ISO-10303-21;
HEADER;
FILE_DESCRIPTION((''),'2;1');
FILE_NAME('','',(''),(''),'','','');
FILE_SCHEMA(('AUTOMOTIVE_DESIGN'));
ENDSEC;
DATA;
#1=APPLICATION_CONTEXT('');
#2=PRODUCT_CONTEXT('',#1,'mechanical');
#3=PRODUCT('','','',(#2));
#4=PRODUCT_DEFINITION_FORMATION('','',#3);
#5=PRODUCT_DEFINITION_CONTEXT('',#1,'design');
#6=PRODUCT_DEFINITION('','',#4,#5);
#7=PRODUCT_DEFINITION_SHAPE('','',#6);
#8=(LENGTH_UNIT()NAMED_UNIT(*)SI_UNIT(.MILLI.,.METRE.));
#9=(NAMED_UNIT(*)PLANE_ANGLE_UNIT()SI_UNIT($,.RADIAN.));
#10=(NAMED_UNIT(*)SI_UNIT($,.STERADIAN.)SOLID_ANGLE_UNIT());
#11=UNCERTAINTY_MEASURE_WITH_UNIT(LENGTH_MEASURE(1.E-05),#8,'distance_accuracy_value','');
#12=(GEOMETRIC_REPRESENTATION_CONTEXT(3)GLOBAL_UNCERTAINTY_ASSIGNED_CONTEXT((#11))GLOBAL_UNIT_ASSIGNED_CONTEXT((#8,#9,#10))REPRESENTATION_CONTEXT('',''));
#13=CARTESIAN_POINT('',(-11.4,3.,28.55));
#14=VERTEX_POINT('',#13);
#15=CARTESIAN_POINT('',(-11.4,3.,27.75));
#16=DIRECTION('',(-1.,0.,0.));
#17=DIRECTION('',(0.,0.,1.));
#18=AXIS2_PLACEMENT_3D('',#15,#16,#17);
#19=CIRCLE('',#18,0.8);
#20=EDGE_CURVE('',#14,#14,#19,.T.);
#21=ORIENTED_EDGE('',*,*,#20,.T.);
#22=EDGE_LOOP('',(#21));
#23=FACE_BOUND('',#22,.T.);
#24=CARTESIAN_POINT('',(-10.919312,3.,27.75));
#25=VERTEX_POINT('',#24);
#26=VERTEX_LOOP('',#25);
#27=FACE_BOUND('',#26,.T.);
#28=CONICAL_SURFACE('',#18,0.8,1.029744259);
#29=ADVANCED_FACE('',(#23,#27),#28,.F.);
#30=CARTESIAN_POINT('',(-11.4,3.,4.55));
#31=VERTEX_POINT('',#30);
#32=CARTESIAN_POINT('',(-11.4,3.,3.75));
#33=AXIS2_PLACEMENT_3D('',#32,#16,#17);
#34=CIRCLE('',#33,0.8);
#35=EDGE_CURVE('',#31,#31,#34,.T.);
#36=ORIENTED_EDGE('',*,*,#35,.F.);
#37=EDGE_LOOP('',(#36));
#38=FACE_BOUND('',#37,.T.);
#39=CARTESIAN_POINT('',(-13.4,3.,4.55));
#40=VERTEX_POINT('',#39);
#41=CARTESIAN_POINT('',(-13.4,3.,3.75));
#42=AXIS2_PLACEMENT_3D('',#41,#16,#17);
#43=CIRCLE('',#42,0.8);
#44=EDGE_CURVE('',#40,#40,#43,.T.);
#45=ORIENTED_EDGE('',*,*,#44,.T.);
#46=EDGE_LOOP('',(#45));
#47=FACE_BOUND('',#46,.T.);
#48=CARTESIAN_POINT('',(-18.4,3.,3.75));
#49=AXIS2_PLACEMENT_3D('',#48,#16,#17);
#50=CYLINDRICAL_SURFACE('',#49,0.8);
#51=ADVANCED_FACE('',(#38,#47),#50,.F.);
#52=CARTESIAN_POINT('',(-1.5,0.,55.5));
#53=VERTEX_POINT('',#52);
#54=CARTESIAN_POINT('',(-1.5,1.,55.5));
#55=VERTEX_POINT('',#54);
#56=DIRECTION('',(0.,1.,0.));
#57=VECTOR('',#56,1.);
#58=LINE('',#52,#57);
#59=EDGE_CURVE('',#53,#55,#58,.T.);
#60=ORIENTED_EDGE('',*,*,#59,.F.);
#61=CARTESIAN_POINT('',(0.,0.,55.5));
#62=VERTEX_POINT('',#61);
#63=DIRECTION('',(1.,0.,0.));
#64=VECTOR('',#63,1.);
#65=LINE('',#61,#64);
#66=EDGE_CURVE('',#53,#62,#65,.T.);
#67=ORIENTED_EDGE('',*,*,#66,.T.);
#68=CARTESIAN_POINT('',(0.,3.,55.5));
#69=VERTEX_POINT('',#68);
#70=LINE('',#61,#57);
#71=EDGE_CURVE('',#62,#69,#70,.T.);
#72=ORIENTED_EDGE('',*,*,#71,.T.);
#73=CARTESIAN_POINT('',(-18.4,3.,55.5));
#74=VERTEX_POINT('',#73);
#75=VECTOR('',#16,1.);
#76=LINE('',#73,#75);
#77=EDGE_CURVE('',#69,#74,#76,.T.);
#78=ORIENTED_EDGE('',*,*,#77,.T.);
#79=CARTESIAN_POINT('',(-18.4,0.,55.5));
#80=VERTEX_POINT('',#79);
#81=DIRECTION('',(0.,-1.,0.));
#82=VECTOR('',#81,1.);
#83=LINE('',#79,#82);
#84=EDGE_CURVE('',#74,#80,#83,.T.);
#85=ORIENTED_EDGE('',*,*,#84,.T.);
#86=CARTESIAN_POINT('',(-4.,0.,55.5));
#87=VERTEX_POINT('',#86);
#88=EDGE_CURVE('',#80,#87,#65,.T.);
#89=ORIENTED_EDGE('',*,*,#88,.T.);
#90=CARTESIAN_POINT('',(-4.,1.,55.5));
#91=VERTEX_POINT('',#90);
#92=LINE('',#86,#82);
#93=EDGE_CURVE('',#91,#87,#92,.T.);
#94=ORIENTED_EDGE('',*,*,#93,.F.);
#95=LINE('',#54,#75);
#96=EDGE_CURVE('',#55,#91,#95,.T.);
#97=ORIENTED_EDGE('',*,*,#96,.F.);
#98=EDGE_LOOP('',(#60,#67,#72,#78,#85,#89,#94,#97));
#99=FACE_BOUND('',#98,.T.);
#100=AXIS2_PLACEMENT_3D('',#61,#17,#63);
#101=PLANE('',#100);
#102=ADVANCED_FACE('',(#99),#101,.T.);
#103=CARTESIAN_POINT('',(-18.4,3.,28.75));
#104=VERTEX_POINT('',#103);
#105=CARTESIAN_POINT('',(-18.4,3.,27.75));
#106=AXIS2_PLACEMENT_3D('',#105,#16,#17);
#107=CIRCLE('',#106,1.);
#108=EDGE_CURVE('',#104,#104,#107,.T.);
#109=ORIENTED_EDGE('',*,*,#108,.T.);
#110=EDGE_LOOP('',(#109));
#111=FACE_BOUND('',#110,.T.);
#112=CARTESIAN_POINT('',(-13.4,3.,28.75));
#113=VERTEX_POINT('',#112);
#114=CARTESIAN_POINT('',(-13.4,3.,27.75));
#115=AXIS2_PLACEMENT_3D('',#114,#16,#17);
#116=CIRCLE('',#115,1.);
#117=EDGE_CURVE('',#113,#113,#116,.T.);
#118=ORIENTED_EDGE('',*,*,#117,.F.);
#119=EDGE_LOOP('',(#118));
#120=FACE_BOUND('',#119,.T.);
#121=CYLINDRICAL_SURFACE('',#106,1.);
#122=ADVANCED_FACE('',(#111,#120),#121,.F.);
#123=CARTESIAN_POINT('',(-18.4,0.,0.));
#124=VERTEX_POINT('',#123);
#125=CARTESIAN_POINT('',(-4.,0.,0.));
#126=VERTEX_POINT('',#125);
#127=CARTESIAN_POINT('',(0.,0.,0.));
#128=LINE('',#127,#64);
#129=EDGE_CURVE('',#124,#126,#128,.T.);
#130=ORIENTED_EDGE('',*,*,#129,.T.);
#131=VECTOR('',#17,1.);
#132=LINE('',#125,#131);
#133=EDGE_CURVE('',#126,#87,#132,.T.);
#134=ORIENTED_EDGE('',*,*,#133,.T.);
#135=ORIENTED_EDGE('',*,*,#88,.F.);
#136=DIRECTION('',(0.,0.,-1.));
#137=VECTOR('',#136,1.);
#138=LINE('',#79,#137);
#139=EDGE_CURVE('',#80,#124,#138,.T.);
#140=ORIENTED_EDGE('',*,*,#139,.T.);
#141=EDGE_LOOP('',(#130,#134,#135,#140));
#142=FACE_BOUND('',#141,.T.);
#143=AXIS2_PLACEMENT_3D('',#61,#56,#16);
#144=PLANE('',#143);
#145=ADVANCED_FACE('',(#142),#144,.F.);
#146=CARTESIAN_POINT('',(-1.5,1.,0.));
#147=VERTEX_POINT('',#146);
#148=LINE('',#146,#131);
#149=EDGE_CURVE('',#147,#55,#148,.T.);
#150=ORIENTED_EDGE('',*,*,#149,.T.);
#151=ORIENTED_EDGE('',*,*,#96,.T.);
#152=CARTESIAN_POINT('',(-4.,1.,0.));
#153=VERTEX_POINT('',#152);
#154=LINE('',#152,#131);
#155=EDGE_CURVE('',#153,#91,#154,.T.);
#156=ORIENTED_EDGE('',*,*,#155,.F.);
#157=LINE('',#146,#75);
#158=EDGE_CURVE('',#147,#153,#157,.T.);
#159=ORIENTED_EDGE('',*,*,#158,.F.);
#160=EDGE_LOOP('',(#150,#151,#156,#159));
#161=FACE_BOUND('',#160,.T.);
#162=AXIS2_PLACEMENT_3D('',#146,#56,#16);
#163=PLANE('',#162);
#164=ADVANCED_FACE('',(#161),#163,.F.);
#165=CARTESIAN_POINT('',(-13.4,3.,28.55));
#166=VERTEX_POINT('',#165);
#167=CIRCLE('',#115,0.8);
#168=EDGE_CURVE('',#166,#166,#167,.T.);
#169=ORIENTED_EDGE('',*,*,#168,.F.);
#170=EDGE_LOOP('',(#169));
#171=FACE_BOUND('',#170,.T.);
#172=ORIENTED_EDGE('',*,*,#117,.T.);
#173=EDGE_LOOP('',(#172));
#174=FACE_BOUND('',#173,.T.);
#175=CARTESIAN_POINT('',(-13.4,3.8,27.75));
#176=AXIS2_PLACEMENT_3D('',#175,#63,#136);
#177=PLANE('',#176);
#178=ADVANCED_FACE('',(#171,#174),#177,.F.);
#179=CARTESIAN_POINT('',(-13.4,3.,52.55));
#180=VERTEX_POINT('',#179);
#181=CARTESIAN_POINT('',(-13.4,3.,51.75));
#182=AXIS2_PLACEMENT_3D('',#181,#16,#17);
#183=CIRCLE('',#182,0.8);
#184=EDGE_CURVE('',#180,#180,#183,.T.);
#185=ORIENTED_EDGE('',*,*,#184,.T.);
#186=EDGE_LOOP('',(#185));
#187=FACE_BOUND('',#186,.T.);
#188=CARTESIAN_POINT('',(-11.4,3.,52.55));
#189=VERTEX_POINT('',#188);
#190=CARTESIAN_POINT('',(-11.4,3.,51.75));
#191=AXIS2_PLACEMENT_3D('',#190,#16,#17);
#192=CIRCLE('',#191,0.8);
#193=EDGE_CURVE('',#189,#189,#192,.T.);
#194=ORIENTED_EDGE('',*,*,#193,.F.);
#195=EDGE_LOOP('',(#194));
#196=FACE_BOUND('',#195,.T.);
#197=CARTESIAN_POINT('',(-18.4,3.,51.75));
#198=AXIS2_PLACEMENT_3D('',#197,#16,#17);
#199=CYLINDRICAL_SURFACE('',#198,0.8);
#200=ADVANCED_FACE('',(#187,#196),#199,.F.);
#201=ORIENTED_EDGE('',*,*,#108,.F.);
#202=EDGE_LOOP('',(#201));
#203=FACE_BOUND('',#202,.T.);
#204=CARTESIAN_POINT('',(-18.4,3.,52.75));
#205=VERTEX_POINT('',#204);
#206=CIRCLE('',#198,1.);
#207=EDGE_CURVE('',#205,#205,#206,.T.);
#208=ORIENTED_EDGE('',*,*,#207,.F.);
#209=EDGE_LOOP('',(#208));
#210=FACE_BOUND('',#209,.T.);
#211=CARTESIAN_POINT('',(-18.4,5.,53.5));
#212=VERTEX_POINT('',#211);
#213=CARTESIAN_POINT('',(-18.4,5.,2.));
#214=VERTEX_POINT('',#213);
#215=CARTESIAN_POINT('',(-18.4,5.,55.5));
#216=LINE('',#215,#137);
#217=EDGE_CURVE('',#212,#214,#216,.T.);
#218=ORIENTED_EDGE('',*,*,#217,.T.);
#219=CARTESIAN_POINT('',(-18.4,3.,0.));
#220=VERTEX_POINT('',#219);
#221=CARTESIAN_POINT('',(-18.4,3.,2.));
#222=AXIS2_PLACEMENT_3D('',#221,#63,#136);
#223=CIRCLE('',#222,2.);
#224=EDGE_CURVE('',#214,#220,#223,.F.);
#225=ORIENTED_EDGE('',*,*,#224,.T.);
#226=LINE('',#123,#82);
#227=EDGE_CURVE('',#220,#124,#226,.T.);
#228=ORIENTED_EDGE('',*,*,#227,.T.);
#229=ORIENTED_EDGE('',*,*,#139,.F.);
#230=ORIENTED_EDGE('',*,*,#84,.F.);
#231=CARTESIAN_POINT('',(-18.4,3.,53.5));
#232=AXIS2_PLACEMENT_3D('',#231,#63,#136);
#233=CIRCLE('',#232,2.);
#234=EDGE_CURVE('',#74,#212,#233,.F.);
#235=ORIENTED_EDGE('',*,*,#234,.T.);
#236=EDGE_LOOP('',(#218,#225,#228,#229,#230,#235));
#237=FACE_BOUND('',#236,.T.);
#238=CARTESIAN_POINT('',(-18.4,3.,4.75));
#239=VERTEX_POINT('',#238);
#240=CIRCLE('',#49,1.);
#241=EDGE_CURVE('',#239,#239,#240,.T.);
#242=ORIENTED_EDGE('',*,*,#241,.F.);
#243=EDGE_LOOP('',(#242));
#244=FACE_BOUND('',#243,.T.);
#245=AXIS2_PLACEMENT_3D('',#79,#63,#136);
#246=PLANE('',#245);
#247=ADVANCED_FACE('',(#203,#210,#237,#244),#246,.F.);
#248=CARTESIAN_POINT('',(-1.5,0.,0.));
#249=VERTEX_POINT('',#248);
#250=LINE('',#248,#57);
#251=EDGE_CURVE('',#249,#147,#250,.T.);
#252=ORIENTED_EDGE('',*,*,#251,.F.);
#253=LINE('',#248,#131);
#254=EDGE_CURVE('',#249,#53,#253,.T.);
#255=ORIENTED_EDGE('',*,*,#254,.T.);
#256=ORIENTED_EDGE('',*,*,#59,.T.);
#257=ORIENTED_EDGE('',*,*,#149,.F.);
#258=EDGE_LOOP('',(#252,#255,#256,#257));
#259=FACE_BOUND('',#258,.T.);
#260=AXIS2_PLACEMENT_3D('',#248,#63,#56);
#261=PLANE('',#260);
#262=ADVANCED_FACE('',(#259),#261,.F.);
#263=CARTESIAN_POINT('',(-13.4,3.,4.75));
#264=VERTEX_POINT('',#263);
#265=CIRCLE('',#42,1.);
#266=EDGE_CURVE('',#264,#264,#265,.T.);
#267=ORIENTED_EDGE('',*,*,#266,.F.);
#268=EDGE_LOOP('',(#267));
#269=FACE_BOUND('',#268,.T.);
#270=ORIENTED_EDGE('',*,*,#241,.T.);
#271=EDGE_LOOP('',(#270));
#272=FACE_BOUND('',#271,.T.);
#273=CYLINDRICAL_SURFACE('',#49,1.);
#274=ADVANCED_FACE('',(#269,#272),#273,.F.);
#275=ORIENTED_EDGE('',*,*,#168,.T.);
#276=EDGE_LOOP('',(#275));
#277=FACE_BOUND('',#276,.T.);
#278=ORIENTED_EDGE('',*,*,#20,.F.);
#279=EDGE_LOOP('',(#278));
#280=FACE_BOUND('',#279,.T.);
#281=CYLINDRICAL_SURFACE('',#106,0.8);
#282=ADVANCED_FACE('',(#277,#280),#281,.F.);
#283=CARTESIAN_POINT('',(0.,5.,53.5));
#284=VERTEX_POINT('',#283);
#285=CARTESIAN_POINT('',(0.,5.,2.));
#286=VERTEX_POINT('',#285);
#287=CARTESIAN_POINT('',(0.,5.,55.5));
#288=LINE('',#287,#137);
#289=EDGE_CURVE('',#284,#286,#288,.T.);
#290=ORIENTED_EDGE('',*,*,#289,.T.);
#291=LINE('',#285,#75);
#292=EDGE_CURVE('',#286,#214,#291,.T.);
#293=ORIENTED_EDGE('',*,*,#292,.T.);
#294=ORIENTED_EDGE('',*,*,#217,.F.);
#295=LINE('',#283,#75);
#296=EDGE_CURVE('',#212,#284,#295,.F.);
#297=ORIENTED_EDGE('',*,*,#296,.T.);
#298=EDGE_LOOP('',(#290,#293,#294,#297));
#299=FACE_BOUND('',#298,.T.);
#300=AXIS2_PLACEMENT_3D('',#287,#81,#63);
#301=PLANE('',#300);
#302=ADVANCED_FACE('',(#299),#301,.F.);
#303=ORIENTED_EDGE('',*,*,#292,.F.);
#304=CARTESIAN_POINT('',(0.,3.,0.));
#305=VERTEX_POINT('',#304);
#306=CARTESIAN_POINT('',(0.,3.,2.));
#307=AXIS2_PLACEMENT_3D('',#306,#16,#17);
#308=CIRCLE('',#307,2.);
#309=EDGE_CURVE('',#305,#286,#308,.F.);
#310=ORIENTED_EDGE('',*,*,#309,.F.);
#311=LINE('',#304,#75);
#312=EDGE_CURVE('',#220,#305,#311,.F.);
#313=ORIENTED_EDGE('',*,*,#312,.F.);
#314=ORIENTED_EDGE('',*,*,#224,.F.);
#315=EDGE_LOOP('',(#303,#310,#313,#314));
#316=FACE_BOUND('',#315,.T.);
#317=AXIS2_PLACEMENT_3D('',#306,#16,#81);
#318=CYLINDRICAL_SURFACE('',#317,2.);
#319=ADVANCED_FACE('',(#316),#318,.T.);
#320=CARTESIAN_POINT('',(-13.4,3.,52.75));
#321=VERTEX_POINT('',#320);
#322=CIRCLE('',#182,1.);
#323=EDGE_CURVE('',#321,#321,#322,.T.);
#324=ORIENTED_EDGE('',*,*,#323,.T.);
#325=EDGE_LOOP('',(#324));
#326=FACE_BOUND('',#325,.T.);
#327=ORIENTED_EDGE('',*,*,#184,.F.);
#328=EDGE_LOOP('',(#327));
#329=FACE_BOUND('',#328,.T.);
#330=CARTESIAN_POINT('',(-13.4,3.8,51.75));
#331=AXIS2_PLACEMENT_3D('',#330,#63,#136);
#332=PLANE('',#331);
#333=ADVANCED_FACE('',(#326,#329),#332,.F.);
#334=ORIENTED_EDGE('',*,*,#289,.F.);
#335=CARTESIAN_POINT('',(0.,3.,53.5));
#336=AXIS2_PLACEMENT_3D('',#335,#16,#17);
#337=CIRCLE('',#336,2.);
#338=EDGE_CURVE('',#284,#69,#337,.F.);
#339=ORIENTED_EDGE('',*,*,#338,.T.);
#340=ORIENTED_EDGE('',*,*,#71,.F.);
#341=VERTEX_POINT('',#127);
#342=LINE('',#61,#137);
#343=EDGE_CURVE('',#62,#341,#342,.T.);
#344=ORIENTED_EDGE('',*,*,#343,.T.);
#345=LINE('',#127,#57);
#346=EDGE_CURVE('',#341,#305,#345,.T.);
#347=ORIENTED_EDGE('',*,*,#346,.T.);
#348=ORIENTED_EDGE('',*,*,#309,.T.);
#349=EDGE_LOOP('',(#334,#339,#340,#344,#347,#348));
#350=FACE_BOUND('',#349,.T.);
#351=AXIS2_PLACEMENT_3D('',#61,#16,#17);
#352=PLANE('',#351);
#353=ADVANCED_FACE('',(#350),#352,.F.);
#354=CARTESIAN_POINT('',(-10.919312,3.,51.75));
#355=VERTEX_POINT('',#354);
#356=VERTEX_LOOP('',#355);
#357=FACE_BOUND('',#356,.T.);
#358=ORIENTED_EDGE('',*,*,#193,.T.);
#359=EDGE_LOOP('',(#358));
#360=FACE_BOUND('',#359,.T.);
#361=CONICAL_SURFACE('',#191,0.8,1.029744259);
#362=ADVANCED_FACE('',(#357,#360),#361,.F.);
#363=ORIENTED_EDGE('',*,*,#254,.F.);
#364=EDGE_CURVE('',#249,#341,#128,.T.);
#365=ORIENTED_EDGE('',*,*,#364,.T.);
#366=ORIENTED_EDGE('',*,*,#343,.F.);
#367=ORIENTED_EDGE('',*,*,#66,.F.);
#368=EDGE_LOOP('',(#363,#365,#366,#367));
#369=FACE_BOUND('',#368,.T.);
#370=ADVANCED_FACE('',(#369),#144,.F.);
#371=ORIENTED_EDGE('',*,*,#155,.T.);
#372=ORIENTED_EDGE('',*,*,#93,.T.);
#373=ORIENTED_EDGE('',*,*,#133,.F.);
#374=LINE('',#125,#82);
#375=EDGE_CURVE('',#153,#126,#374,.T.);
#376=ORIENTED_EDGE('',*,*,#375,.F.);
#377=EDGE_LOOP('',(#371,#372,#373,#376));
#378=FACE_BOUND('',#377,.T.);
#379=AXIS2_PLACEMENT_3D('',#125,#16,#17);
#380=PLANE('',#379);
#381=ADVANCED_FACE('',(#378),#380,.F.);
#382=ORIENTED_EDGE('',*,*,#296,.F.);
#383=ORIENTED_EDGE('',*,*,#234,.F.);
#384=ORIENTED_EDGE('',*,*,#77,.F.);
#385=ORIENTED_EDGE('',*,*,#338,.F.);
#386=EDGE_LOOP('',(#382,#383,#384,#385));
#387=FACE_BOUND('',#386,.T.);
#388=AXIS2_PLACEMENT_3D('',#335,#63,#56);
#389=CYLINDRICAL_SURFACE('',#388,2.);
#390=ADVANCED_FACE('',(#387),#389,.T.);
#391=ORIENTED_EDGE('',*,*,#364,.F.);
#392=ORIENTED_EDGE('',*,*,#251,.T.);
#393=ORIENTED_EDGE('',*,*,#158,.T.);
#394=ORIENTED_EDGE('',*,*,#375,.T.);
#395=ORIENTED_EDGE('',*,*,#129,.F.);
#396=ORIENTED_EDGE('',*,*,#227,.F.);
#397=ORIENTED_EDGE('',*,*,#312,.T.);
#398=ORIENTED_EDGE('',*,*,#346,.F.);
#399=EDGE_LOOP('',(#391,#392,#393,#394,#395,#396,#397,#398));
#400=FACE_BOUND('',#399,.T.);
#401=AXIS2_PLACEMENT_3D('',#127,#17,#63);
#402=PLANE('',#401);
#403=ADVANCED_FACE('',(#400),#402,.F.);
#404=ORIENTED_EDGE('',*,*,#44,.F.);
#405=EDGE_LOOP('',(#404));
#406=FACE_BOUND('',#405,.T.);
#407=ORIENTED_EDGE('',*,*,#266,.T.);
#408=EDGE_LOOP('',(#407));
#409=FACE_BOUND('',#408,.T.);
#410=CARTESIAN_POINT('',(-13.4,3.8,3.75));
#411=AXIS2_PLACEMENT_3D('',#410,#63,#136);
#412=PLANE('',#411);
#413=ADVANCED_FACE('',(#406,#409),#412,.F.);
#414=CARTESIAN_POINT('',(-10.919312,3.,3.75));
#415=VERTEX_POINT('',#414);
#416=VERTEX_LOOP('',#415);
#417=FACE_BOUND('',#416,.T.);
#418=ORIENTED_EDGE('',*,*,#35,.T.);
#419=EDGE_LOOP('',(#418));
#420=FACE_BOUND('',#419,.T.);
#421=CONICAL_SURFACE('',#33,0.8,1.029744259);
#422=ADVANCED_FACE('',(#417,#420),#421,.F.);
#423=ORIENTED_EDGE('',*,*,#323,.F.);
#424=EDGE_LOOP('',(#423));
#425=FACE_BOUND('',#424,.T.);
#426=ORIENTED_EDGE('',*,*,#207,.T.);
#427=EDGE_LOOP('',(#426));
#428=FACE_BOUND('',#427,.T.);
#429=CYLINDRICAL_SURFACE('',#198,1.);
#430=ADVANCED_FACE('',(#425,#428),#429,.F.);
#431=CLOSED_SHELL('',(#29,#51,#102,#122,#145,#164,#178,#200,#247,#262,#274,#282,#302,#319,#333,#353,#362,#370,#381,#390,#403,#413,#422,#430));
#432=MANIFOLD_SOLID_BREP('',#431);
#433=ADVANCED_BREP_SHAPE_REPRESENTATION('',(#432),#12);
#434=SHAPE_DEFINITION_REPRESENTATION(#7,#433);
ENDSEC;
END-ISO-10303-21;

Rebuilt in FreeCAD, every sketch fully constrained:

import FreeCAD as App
import Part
import Sketcher


def edges_at(feature, points):
    """Names of the edges that pass closest to the given points."""
    edges = feature.Shape.Edges
    near = lambda p: min(range(len(edges)), key=lambda i: edges[i].distToShape(Part.Vertex(*p))[0])
    return sorted({f"Edge{near(p) + 1}" for p in points})


def add_polygon(sketch, points):
    """Adds a closed chain of lines whose ends are joined by coincident constraints."""
    first, n = sketch.GeometryCount, len(points)
    for a, b in zip(points, points[1:] + points[:1]):
        sketch.addGeometry(Part.LineSegment(App.Vector(*a, 0), App.Vector(*b, 0)), False)
    for i in range(n):
        sketch.addConstraint(Sketcher.Constraint("Coincident", first + i, 2, first + (i + 1) % n, 1))

doc = App.newDocument("Part")
body = doc.addObject("PartDesign::Body", "Body")

sketch1 = doc.addObject("Sketcher::SketchObject", "Sketch")
body.addObject(sketch1)
sketch1.AttachmentSupport = (doc.XY_Plane, [""])
sketch1.MapMode = "FlatFace"
add_polygon(sketch1, [(-18.4, 5), (-18.4, 0), (0, 0), (0, 5)])
sketch1.addConstraint([
    Sketcher.Constraint("Vertical", 0),
    Sketcher.Constraint("Horizontal", 1),
    Sketcher.Constraint("Vertical", 2),
    Sketcher.Constraint("Horizontal", 3),
    Sketcher.Constraint("Coincident", 1, 2, -1, 1),
    Sketcher.Constraint("DistanceY", 0, 2, 0, 1, 5.0),
    Sketcher.Constraint("DistanceX", 1, 1, 1, 2, 18.4),
])
pad1 = doc.addObject("PartDesign::Pad", "Pad")
body.addObject(pad1)
pad1.Profile = sketch1
pad1.Length = 55.5

sketch2 = doc.addObject("Sketcher::SketchObject", "Sketch001")
body.addObject(sketch2)
sketch2.AttachmentSupport = (doc.XY_Plane, [""])
sketch2.MapMode = "FlatFace"
sketch2.AttachmentOffset = App.Placement(App.Vector(0, 0, 55.5), App.Rotation())
add_polygon(sketch2, [(-4, 1), (-4, 0), (-1.5, 0), (-1.5, 1)])
sketch2.addConstraint([
    Sketcher.Constraint("Vertical", 0),
    Sketcher.Constraint("Horizontal", 1),
    Sketcher.Constraint("Vertical", 2),
    Sketcher.Constraint("Horizontal", 3),
    Sketcher.Constraint("PointOnObject", 0, 2, -1),
    Sketcher.Constraint("DistanceY", 0, 2, 0, 1, 1.0),
    Sketcher.Constraint("DistanceX", 1, 1, 1, 2, 2.5),
    Sketcher.Constraint("DistanceX", 0, 2, -1, 1, 4.0),
])
pocket1 = doc.addObject("PartDesign::Pocket", "Pocket")
body.addObject(pocket1)
pocket1.Profile = sketch2
pocket1.Type = "ThroughAll"

sketch3 = doc.addObject("Sketcher::SketchObject", "Sketch002")
body.addObject(sketch3)
sketch3.AttachmentSupport = (doc.YZ_Plane, [""])
sketch3.MapMode = "FlatFace"
sketch3.AttachmentOffset = App.Placement(App.Vector(0, 0, -18.4), App.Rotation())
sketch3.addGeometry([
    Part.Circle(App.Vector(3, 51.75, 0), App.Vector(0, 0, 1), 0.8),
    Part.Circle(App.Vector(3, 27.75, 0), App.Vector(0, 0, 1), 0.8),
    Part.Circle(App.Vector(3, 3.75, 0), App.Vector(0, 0, 1), 0.8),
], False)
sketch3.addConstraint([
    Sketcher.Constraint("Equal", 0, 1),
    Sketcher.Constraint("Equal", 1, 2),
    Sketcher.Constraint("Vertical", 0, 3, 1, 3),
    Sketcher.Constraint("Vertical", 1, 3, 2, 3),
    Sketcher.Constraint("Diameter", 0, 1.6),
    Sketcher.Constraint("DistanceX", -1, 1, 0, 3, 3.0),
    Sketcher.Constraint("DistanceY", 1, 3, 0, 3, 24.0),
    Sketcher.Constraint("DistanceY", 2, 3, 1, 3, 24.0),
    Sketcher.Constraint("DistanceY", -1, 1, 0, 3, 51.75),
])
doc.recompute()
hole = doc.addObject("PartDesign::Hole", "Hole")
body.addObject(hole)
hole.Profile = sketch3
hole.ThreadType = "None"
hole.Diameter = 1.6
hole.DepthType = "Dimension"
hole.Depth = 7
hole.DrillPoint = "Angled"
hole.DrillPointAngle = 118
hole.HoleCutType = "Counterbore"
hole.HoleCutDiameter = 2
hole.HoleCutDepth = 5
hole.Reversed = True
doc.recompute()

fillet = doc.addObject("PartDesign::Fillet", "Fillet")
body.addObject(fillet)
fillet.Base = (hole, edges_at(hole, [(-9.2, 5, 0), (-9.2, 5, 55.5)]))
fillet.Radius = 2

doc.recompute()
